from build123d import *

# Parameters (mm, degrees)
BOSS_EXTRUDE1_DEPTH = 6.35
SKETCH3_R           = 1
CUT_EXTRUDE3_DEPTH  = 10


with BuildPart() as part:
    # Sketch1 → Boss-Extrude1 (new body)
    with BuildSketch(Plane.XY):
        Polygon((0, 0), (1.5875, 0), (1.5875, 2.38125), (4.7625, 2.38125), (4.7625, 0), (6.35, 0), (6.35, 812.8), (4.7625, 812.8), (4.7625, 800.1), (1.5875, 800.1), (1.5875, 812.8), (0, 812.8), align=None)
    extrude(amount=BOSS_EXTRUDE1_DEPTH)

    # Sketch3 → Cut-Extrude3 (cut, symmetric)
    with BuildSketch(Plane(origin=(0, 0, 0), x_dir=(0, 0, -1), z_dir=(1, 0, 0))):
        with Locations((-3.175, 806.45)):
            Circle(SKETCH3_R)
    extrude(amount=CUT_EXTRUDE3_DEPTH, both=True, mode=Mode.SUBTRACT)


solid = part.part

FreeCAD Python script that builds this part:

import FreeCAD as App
import Part
import Sketcher
Q = App.Units.Quantity


def add_polygon(sketch, points):
    """Adds a closed chain of lines whose ends are joined by coincident constraints."""
    first, n = sketch.GeometryCount, len(points)
    for a, b in zip(points, points[1:] + points[:1]):
        sketch.addGeometry(Part.LineSegment(App.Vector(*a, 0), App.Vector(*b, 0)), False)
    for i in range(n):
        sketch.addConstraint(Sketcher.Constraint("Coincident", first + i, 2, first + (i + 1) % n, 1))

doc = App.newDocument("Part")
body = doc.addObject("PartDesign::Body", "Body")

sketch1 = body.newObject("Sketcher::SketchObject", "Sketch")
sketch1.AttachmentSupport = (doc.getObject("XY_Plane"), [""])
sketch1.MapMode = "FlatFace"
add_polygon(sketch1, [(0, 0), (1.5875, 0), (1.5875, 2.38125), (4.7625, 2.38125), (4.7625, 0), (6.35, 0), (6.35, 812.8), (4.7625, 812.8), (4.7625, 800.1), (1.5875, 800.1), (1.5875, 812.8), (0, 812.8)])
sketch1.addConstraint(Sketcher.Constraint("Horizontal", 0))
sketch1.addConstraint(Sketcher.Constraint("Vertical", 1))
sketch1.addConstraint(Sketcher.Constraint("Horizontal", 2))
sketch1.addConstraint(Sketcher.Constraint("Vertical", 3))
sketch1.addConstraint(Sketcher.Constraint("Horizontal", 4))
sketch1.addConstraint(Sketcher.Constraint("Vertical", 5))
sketch1.addConstraint(Sketcher.Constraint("Horizontal", 6))
sketch1.addConstraint(Sketcher.Constraint("Vertical", 7))
sketch1.addConstraint(Sketcher.Constraint("Horizontal", 8))
sketch1.addConstraint(Sketcher.Constraint("Vertical", 9))
sketch1.addConstraint(Sketcher.Constraint("Horizontal", 10))
sketch1.addConstraint(Sketcher.Constraint("Vertical", 11))
sketch1.addConstraint(Sketcher.Constraint("Coincident", 11, 2, -1, 1))
sketch1.addConstraint(Sketcher.Constraint("PointOnObject", 3, 2, -1))
sketch1.addConstraint(Sketcher.Constraint("Horizontal", 6, 2, 9, 2))
sketch1.addConstraint(Sketcher.Constraint("Vertical", 3, 2, 6, 2))
sketch1.addConstraint(Sketcher.Constraint("Vertical", 1, 2, 8, 2))
sketch1.addConstraint(Sketcher.Constraint("Equal", 0, 4))
sketch1.addConstraint(Sketcher.Constraint("DistanceY", 5, 1, 5, 2, Q("32 in")))
sketch1.addConstraint(Sketcher.Constraint("DistanceY", 7, 2, 7, 1, Q("0.5 in")))
sketch1.addConstraint(Sketcher.Constraint("DistanceX", 0, 1, 0, 2, Q("0.0625 in")))
sketch1.addConstraint(Sketcher.Constraint("DistanceX", 2, 1, 2, 2, Q("0.125 in")))
sketch1.addConstraint(Sketcher.Constraint("DistanceY", 1, 1, 1, 2, Q("0.09375 in")))
pad1 = body.newObject("PartDesign::Pad", "Pad")
pad1.Profile = sketch1
pad1.Length = Q("0.25 in")

sketch2 = body.newObject("Sketcher::SketchObject", "Sketch001")
sketch2.AttachmentSupport = (doc.getObject("YZ_Plane"), [""])
sketch2.MapMode = "FlatFace"
sketch2.addGeometry(Part.Circle(App.Vector(806.45, 3.175, 0), App.Vector(0, 0, 1), 1), False)
sketch2.addConstraint(Sketcher.Constraint("Diameter", 0, 2.0))
sketch2.addConstraint(Sketcher.Constraint("DistanceX", -1, 1, 0, 3, Q("31.75 in")))
sketch2.addConstraint(Sketcher.Constraint("DistanceY", -1, 1, 0, 3, Q("0.125 in")))
pocket1 = body.newObject("PartDesign::Pocket", "Pocket")
pocket1.Profile = sketch2
pocket1.Length = 20
pocket1.Midplane = True

doc.recompute()
